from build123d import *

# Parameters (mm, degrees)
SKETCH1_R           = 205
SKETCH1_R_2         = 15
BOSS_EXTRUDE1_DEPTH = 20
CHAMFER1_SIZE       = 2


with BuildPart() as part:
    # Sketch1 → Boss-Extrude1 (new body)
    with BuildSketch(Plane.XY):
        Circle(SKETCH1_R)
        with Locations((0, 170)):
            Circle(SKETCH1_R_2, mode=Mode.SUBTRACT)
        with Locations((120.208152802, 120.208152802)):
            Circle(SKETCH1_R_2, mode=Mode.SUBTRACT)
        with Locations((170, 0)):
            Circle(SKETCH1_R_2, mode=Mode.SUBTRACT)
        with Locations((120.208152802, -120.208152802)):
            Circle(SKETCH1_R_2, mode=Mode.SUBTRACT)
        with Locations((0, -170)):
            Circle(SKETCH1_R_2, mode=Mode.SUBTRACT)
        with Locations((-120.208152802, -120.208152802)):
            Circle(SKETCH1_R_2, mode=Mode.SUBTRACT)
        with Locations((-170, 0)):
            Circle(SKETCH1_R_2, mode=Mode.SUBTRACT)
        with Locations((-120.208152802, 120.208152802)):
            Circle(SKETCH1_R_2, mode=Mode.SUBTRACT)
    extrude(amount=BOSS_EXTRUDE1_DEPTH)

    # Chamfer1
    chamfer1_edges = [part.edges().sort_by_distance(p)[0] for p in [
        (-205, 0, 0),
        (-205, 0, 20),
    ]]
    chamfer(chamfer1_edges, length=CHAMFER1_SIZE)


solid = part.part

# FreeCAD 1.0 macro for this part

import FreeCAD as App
import Part
import Sketcher

V = App.Vector
Q = App.Units.Quantity


def edges_at(feature, points):
    """Names of the edges that pass closest to the given points."""
    edges = feature.Shape.Edges
    near = lambda p: min(range(len(edges)), key=lambda i: edges[i].distToShape(Part.Vertex(*p))[0])
    return sorted({f"Edge{near(p) + 1}" for p in points})

doc = App.newDocument("Part")
body = doc.addObject("PartDesign::Body", "Body")

# Sketch on XY plane
sketch1 = body.newObject("Sketcher::SketchObject", "Sketch")
sketch1.AttachmentSupport = (doc.getObject("XY_Plane"), [""])
sketch1.MapMode = "FlatFace"
sketch1.addGeometry(Part.Circle(V(0, 0, 0), V(0, 0, 1), 205), False)
sketch1.addGeometry(Part.Circle(V(-120.208153, -120.208153, 0), V(0, 0, 1), 15), False)
sketch1.addGeometry(Part.Circle(V(0, -170, 0), V(0, 0, 1), 15), False)
sketch1.addGeometry(Part.Circle(V(120.208153, -120.208153, 0), V(0, 0, 1), 15), False)
sketch1.addGeometry(Part.Circle(V(-170, 0, 0), V(0, 0, 1), 15), False)
sketch1.addGeometry(Part.Circle(V(-120.208153, 120.208153, 0), V(0, 0, 1), 15), False)
sketch1.addGeometry(Part.Circle(V(170, 0, 0), V(0, 0, 1), 15), False)
sketch1.addGeometry(Part.Circle(V(0, 170, 0), V(0, 0, 1), 15), False)
sketch1.addGeometry(Part.Circle(V(120.208153, 120.208153, 0), V(0, 0, 1), 15), False)
sketch1.addConstraint(Sketcher.Constraint("Coincident", 0, 3, -1, 1))
sketch1.addConstraint(Sketcher.Constraint("Equal", 1, 2))
sketch1.addConstraint(Sketcher.Constraint("Equal", 2, 3))
sketch1.addConstraint(Sketcher.Constraint("Equal", 3, 4))
sketch1.addConstraint(Sketcher.Constraint("Equal", 4, 5))
sketch1.addConstraint(Sketcher.Constraint("Equal", 5, 6))
sketch1.addConstraint(Sketcher.Constraint("Equal", 6, 7))
sketch1.addConstraint(Sketcher.Constraint("Equal", 7, 8))
sketch1.addConstraint(Sketcher.Constraint("Symmetric", 3, 3, 5, 3, -1, 1))
sketch1.addConstraint(Sketcher.Constraint("Symmetric", 4, 3, 6, 3, -1, 1))
sketch1.addConstraint(Sketcher.Constraint("Symmetric", 2, 3, 7, 3, -1, 1))
sketch1.addConstraint(Sketcher.Constraint("Symmetric", 1, 3, 8, 3, -1, 1))
sketch1.addConstraint(Sketcher.Constraint("Symmetric", 1, 3, 3, 3, -2))
sketch1.addConstraint(Sketcher.Constraint("PointOnObject", 2, 3, -2))
sketch1.addConstraint(Sketcher.Constraint("PointOnObject", 4, 3, -1))
sketch1.addConstraint(Sketcher.Constraint("Diameter", 0, Q("410 mm")))
sketch1.addConstraint(Sketcher.Constraint("Diameter", 1, Q("30 mm")))
sketch1.addConstraint(Sketcher.Constraint("DistanceY", 2, 3, -1, 1, Q("170 mm")))
sketch1.addConstraint(Sketcher.Constraint("DistanceX", 4, 3, -1, 1, Q("170 mm")))
sketch1.addConstraint(Sketcher.Constraint("DistanceX", 1, 3, -1, 1, Q("120.208153 mm")))
sketch1.addConstraint(Sketcher.Constraint("DistanceY", 1, 3, -1, 1, Q("120.208153 mm")))
pad1 = body.newObject("PartDesign::Pad", "Pad")
pad1.Profile = sketch1
pad1.Length = 20
doc.recompute()

chamfer = body.newObject("PartDesign::Chamfer", "Chamfer")
chamfer.Base = (pad1, edges_at(pad1, [(-205, 0, 0), (-205, 0, 20)]))
chamfer.Size = 2

doc.recompute()
